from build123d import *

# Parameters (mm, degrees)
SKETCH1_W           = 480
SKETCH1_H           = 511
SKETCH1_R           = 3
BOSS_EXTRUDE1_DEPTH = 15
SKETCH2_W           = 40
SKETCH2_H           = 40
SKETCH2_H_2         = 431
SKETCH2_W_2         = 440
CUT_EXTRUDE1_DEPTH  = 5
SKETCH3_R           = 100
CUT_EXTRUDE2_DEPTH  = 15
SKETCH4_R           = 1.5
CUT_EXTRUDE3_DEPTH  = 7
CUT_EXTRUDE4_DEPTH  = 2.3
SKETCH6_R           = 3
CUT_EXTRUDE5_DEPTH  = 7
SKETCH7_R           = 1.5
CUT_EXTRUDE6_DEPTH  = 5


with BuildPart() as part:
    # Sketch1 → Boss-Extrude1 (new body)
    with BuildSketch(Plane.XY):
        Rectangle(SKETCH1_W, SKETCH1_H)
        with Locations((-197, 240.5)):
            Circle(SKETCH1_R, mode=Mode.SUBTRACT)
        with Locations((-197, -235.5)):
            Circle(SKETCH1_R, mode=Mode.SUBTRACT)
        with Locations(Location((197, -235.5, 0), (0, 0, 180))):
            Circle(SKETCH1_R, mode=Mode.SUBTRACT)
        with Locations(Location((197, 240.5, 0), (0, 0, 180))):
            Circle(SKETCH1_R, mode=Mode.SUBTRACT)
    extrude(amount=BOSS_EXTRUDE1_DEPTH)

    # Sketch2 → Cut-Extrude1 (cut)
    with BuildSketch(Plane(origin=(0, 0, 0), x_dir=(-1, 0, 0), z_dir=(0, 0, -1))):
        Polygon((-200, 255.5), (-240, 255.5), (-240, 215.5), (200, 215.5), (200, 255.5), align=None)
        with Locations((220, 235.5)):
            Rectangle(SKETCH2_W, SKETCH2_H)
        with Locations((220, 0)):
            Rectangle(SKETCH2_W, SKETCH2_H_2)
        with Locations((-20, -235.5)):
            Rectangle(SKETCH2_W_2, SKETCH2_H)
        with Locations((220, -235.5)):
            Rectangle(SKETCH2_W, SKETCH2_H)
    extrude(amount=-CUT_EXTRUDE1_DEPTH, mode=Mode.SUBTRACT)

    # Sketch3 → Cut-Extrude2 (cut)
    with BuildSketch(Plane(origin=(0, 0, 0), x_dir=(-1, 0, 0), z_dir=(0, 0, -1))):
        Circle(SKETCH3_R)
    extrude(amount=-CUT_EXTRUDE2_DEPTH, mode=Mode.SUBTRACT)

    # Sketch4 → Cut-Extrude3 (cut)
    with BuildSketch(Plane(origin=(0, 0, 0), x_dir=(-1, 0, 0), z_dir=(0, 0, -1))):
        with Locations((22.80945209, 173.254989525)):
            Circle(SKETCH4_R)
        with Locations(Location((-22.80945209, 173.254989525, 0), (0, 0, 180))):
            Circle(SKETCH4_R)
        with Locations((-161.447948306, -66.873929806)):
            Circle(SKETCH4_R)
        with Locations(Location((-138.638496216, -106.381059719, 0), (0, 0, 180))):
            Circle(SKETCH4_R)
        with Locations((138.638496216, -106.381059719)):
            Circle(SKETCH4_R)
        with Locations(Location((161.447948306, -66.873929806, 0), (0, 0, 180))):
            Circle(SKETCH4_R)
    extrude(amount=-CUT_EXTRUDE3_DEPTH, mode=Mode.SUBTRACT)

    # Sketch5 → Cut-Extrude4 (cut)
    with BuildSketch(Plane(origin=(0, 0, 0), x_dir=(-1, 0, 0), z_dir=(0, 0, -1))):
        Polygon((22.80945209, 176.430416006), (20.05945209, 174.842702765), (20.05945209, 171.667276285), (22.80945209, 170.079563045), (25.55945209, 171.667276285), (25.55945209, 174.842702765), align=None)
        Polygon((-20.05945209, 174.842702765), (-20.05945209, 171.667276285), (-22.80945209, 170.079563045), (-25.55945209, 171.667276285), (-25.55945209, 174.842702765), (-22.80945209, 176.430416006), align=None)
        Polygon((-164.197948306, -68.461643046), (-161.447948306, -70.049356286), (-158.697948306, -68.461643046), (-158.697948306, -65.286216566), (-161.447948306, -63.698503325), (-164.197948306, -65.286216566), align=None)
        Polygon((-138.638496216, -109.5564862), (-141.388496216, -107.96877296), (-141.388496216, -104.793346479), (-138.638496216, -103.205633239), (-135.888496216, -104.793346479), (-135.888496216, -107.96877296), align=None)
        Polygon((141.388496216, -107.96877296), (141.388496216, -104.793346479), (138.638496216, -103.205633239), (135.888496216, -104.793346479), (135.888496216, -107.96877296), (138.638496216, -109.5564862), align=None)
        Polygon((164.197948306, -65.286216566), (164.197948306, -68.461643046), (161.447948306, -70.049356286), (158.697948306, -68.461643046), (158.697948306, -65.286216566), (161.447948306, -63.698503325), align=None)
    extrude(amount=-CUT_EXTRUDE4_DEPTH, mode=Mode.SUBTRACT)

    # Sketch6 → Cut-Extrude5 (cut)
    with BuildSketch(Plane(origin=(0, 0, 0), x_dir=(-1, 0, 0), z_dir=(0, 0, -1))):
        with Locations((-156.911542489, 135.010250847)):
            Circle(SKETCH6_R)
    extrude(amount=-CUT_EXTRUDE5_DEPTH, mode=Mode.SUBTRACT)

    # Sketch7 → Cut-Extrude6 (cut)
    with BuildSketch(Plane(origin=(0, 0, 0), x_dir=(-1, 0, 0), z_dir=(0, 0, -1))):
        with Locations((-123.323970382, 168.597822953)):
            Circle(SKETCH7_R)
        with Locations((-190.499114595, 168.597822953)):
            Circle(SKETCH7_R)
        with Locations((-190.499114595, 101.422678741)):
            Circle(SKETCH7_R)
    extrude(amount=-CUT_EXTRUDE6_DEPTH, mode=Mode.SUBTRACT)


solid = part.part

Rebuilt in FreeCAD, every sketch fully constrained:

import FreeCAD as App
import Part
import Sketcher

V = App.Vector
Q = App.Units.Quantity

doc = App.newDocument("Part")
body = doc.addObject("PartDesign::Body", "Body")

# Sketch on XY plane
sketch1 = body.newObject("Sketcher::SketchObject", "Sketch")
sketch1.AttachmentSupport = (doc.getObject("XY_Plane"), [""])
sketch1.MapMode = "FlatFace"
sketch1.addGeometry(Part.LineSegment(V(-240, 255.5, 0), V(-240, -255.5, 0)), False)
sketch1.addGeometry(Part.LineSegment(V(-240, -255.5, 0), V(240, -255.5, 0)), False)
sketch1.addGeometry(Part.LineSegment(V(240, -255.5, 0), V(240, 255.5, 0)), False)
sketch1.addGeometry(Part.LineSegment(V(240, 255.5, 0), V(-240, 255.5, 0)), False)
sketch1.addGeometry(Part.Circle(V(-197, -235.5, 0), V(0, 0, 1), 3), False)
sketch1.addGeometry(Part.Circle(V(197, -235.5, 0), V(0, 0, 1), 3), False)
sketch1.addGeometry(Part.Circle(V(-197, 240.5, 0), V(0, 0, 1), 3), False)
sketch1.addGeometry(Part.Circle(V(197, 240.5, 0), V(0, 0, 1), 3), False)
sketch1.addConstraint(Sketcher.Constraint("Coincident", 0, 2, 1, 1))
sketch1.addConstraint(Sketcher.Constraint("Coincident", 1, 2, 2, 1))
sketch1.addConstraint(Sketcher.Constraint("Coincident", 2, 2, 3, 1))
sketch1.addConstraint(Sketcher.Constraint("Coincident", 3, 2, 0, 1))
sketch1.addConstraint(Sketcher.Constraint("Vertical", 0))
sketch1.addConstraint(Sketcher.Constraint("Horizontal", 1))
sketch1.addConstraint(Sketcher.Constraint("Vertical", 2))
sketch1.addConstraint(Sketcher.Constraint("Horizontal", 3))
sketch1.addConstraint(Sketcher.Constraint("Equal", 4, 5))
sketch1.addConstraint(Sketcher.Constraint("Equal", 5, 6))
sketch1.addConstraint(Sketcher.Constraint("Equal", 6, 7))
sketch1.addConstraint(Sketcher.Constraint("Symmetric", 0, 2, 2, 2, -1, 1))
sketch1.addConstraint(Sketcher.Constraint("Symmetric", 4, 3, 5, 3, -2))
sketch1.addConstraint(Sketcher.Constraint("Symmetric", 6, 3, 7, 3, -2))
sketch1.addConstraint(Sketcher.Constraint("Vertical", 4, 3, 6, 3))
sketch1.addConstraint(Sketcher.Constraint("Diameter", 4, Q("6 mm")))
sketch1.addConstraint(Sketcher.Constraint("DistanceX", 1, 1, 1, 2, Q("480 mm")))
sketch1.addConstraint(Sketcher.Constraint("DistanceY", 0, 2, 0, 1, Q("511 mm")))
sketch1.addConstraint(Sketcher.Constraint("DistanceX", 4, 3, -1, 1, Q("197 mm")))
sketch1.addConstraint(Sketcher.Constraint("DistanceY", 4, 3, 6, 3, Q("476 mm")))
sketch1.addConstraint(Sketcher.Constraint("DistanceY", 0, 2, 4, 3, Q("20 mm")))
pad1 = body.newObject("PartDesign::Pad", "Pad")
pad1.Profile = sketch1
pad1.Length = 15

# Sketch on XY plane
sketch2 = body.newObject("Sketcher::SketchObject", "Sketch001")
sketch2.AttachmentSupport = (doc.getObject("XY_Plane"), [""])
sketch2.MapMode = "FlatFace"
sketch2.addGeometry(Part.LineSegment(V(240, 256, 0), V(240, 216, 0)), False)
sketch2.addGeometry(Part.LineSegment(V(240, 216, 0), V(-200, 216, 0)), False)
sketch2.addGeometry(Part.LineSegment(V(-200, 216, 0), V(-200, -216, 0)), False)
sketch2.addGeometry(Part.LineSegment(V(-200, -216, 0), V(240, -216, 0)), False)
sketch2.addGeometry(Part.LineSegment(V(240, -216, 0), V(240, -256, 0)), False)
sketch2.addGeometry(Part.LineSegment(V(240, -256, 0), V(-240, -256, 0)), False)
sketch2.addGeometry(Part.LineSegment(V(-240, -256, 0), V(-240, 256, 0)), False)
sketch2.addGeometry(Part.LineSegment(V(-240, 256, 0), V(240, 256, 0)), False)
sketch2.addConstraint(Sketcher.Constraint("Coincident", 0, 2, 1, 1))
sketch2.addConstraint(Sketcher.Constraint("Coincident", 1, 2, 2, 1))
sketch2.addConstraint(Sketcher.Constraint("Coincident", 2, 2, 3, 1))
sketch2.addConstraint(Sketcher.Constraint("Coincident", 3, 2, 4, 1))
sketch2.addConstraint(Sketcher.Constraint("Coincident", 4, 2, 5, 1))
sketch2.addConstraint(Sketcher.Constraint("Coincident", 5, 2, 6, 1))
sketch2.addConstraint(Sketcher.Constraint("Coincident", 6, 2, 7, 1))
sketch2.addConstraint(Sketcher.Constraint("Coincident", 7, 2, 0, 1))
sketch2.addConstraint(Sketcher.Constraint("Vertical", 0))
sketch2.addConstraint(Sketcher.Constraint("Horizontal", 1))
sketch2.addConstraint(Sketcher.Constraint("Vertical", 2))
sketch2.addConstraint(Sketcher.Constraint("Horizontal", 3))
sketch2.addConstraint(Sketcher.Constraint("Vertical", 4))
sketch2.addConstraint(Sketcher.Constraint("Horizontal", 5))
sketch2.addConstraint(Sketcher.Constraint("Vertical", 6))
sketch2.addConstraint(Sketcher.Constraint("Horizontal", 7))
sketch2.addConstraint(Sketcher.Constraint("Symmetric", 4, 2, 6, 2, -1, 1))
sketch2.addConstraint(Sketcher.Constraint("Symmetric", 0, 2, 3, 2, -1))
sketch2.addConstraint(Sketcher.Constraint("DistanceX", 1, 2, 1, 1, Q("440 mm")))
sketch2.addConstraint(Sketcher.Constraint("DistanceX", 5, 2, 5, 1, Q("480 mm")))
sketch2.addConstraint(Sketcher.Constraint("DistanceY", 0, 2, 0, 1, Q("40 mm")))
sketch2.addConstraint(Sketcher.Constraint("DistanceY", 2, 2, 2, 1, Q("431 mm")))
pocket1 = body.newObject("PartDesign::Pocket", "Pocket")
pocket1.Profile = sketch2
pocket1.Length = 5
pocket1.Reversed = True

# Sketch on XY plane
sketch3 = body.newObject("Sketcher::SketchObject", "Sketch002")
sketch3.AttachmentSupport = (doc.getObject("XY_Plane"), [""])
sketch3.MapMode = "FlatFace"
sketch3.addGeometry(Part.Circle(V(0, 0, 0), V(0, 0, 1), 100), False)
sketch3.addConstraint(Sketcher.Constraint("Coincident", 0, 3, -1, 1))
sketch3.addConstraint(Sketcher.Constraint("Diameter", 0, Q("200 mm")))
pocket2 = body.newObject("PartDesign::Pocket", "Pocket001")
pocket2.Profile = sketch3
pocket2.Length = 15
pocket2.Reversed = True

# Sketch on XY plane
sketch4 = body.newObject("Sketcher::SketchObject", "Sketch003")
sketch4.AttachmentSupport = (doc.getObject("XY_Plane"), [""])
sketch4.MapMode = "FlatFace"
sketch4.addGeometry(Part.Circle(V(-22.8, 173.3, 0), V(0, 0, 1), 1.5), False)
sketch4.addGeometry(Part.Circle(V(22.8, 173.3, 0), V(0, 0, 1), 1.5), False)
sketch4.addGeometry(Part.Circle(V(161.4, -66.9, 0), V(0, 0, 1), 1.5), False)
sketch4.addGeometry(Part.Circle(V(138.6, -106.4, 0), V(0, 0, 1), 1.5), False)
sketch4.addGeometry(Part.Circle(V(-138.6, -106.4, 0), V(0, 0, 1), 1.5), False)
sketch4.addGeometry(Part.Circle(V(-161.4, -66.9, 0), V(0, 0, 1), 1.5), False)
sketch4.addConstraint(Sketcher.Constraint("Equal", 0, 1))
sketch4.addConstraint(Sketcher.Constraint("Equal", 1, 2))
sketch4.addConstraint(Sketcher.Constraint("Equal", 2, 3))
sketch4.addConstraint(Sketcher.Constraint("Equal", 3, 4))
sketch4.addConstraint(Sketcher.Constraint("Equal", 4, 5))
sketch4.addConstraint(Sketcher.Constraint("Symmetric", 0, 3, 1, 3, -2))
sketch4.addConstraint(Sketcher.Constraint("Symmetric", 3, 3, 4, 3, -2))
sketch4.addConstraint(Sketcher.Constraint("Symmetric", 2, 3, 5, 3, -2))
sketch4.addConstraint(Sketcher.Constraint("Diameter", 0, Q("3 mm")))
sketch4.addConstraint(Sketcher.Constraint("DistanceX", 0, 3, 2, 3, Q("184.2574 mm")))
sketch4.addConstraint(Sketcher.Constraint("DistanceY", -1, 1, 0, 3, Q("173.25499 mm")))
sketch4.addConstraint(Sketcher.Constraint("DistanceX", -1, 1, 2, 3, Q("161.447948 mm")))
sketch4.addConstraint(Sketcher.Constraint("DistanceY", 2, 3, -1, 1, Q("66.87393 mm")))
sketch4.addConstraint(Sketcher.Constraint("DistanceY", 3, 3, -1, 1, Q("106.38106 mm")))
sketch4.addConstraint(Sketcher.Constraint("DistanceX", 0, 3, 3, 3, Q("161.447948 mm")))
pocket3 = body.newObject("PartDesign::Pocket", "Pocket002")
pocket3.Profile = sketch4
pocket3.Length = 7
pocket3.Reversed = True

# Sketch on XY plane
sketch5 = body.newObject("Sketcher::SketchObject", "Sketch004")
sketch5.AttachmentSupport = (doc.getObject("XY_Plane"), [""])
sketch5.MapMode = "FlatFace"
sketch5.addGeometry(Part.LineSegment(V(-22.8, 176.4, 0), V(-20.1, 174.8, 0)), False)
sketch5.addGeometry(Part.LineSegment(V(-20.1, 174.8, 0), V(-20.1, 171.7, 0)), False)
sketch5.addGeometry(Part.LineSegment(V(-20.1, 171.7, 0), V(-22.8, 170.1, 0)), False)
sketch5.addGeometry(Part.LineSegment(V(-22.8, 170.1, 0), V(-25.6, 171.7, 0)), False)
sketch5.addGeometry(Part.LineSegment(V(-25.6, 171.7, 0), V(-25.6, 174.8, 0)), False)
sketch5.addGeometry(Part.LineSegment(V(-25.6, 174.8, 0), V(-22.8, 176.4, 0)), False)
sketch5.addGeometry(Part.LineSegment(V(20.1, 171.7, 0), V(20.1, 174.8, 0)), False)
sketch5.addGeometry(Part.LineSegment(V(20.1, 174.8, 0), V(22.8, 176.4, 0)), False)
sketch5.addGeometry(Part.LineSegment(V(22.8, 176.4, 0), V(25.6, 174.8, 0)), False)
sketch5.addGeometry(Part.LineSegment(V(25.6, 174.8, 0), V(25.6, 171.7, 0)), False)
sketch5.addGeometry(Part.LineSegment(V(25.6, 171.7, 0), V(22.8, 170.1, 0)), False)
sketch5.addGeometry(Part.LineSegment(V(22.8, 170.1, 0), V(20.1, 171.7, 0)), False)
sketch5.addGeometry(Part.LineSegment(V(164.2, -68.5, 0), V(161.4, -70, 0)), False)
sketch5.addGeometry(Part.LineSegment(V(161.4, -70, 0), V(158.7, -68.5, 0)), False)
sketch5.addGeometry(Part.LineSegment(V(158.7, -68.5, 0), V(158.7, -65.3, 0)), False)
sketch5.addGeometry(Part.LineSegment(V(158.7, -65.3, 0), V(161.4, -63.7, 0)), False)
sketch5.addGeometry(Part.LineSegment(V(161.4, -63.7, 0), V(164.2, -65.3, 0)), False)
sketch5.addGeometry(Part.LineSegment(V(164.2, -65.3, 0), V(164.2, -68.5, 0)), False)
sketch5.addGeometry(Part.LineSegment(V(141.4, -108, 0), V(138.6, -109.6, 0)), False)
sketch5.addGeometry(Part.LineSegment(V(138.6, -109.6, 0), V(135.9, -108, 0)), False)
sketch5.addGeometry(Part.LineSegment(V(135.9, -108, 0), V(135.9, -104.8, 0)), False)
sketch5.addGeometry(Part.LineSegment(V(135.9, -104.8, 0), V(138.6, -103.2, 0)), False)
sketch5.addGeometry(Part.LineSegment(V(138.6, -103.2, 0), V(141.4, -104.8, 0)), False)
sketch5.addGeometry(Part.LineSegment(V(141.4, -104.8, 0), V(141.4, -108, 0)), False)
sketch5.addGeometry(Part.LineSegment(V(-141.4, -108, 0), V(-141.4, -104.8, 0)), False)
sketch5.addGeometry(Part.LineSegment(V(-141.4, -104.8, 0), V(-138.6, -103.2, 0)), False)
sketch5.addGeometry(Part.LineSegment(V(-138.6, -103.2, 0), V(-135.9, -104.8, 0)), False)
sketch5.addGeometry(Part.LineSegment(V(-135.9, -104.8, 0), V(-135.9, -108, 0)), False)
sketch5.addGeometry(Part.LineSegment(V(-135.9, -108, 0), V(-138.6, -109.6, 0)), False)
sketch5.addGeometry(Part.LineSegment(V(-138.6, -109.6, 0), V(-141.4, -108, 0)), False)
sketch5.addGeometry(Part.LineSegment(V(-164.2, -68.5, 0), V(-164.2, -65.3, 0)), False)
sketch5.addGeometry(Part.LineSegment(V(-164.2, -65.3, 0), V(-161.4, -63.7, 0)), False)
sketch5.addGeometry(Part.LineSegment(V(-161.4, -63.7, 0), V(-158.7, -65.3, 0)), False)
sketch5.addGeometry(Part.LineSegment(V(-158.7, -65.3, 0), V(-158.7, -68.5, 0)), False)
sketch5.addGeometry(Part.LineSegment(V(-158.7, -68.5, 0), V(-161.4, -70, 0)), False)
sketch5.addGeometry(Part.LineSegment(V(-161.4, -70, 0), V(-164.2, -68.5, 0)), False)
sketch5.addConstraint(Sketcher.Constraint("Coincident", 0, 2, 1, 1))
sketch5.addConstraint(Sketcher.Constraint("Coincident", 1, 2, 2, 1))
sketch5.addConstraint(Sketcher.Constraint("Coincident", 2, 2, 3, 1))
sketch5.addConstraint(Sketcher.Constraint("Coincident", 3, 2, 4, 1))
sketch5.addConstraint(Sketcher.Constraint("Coincident", 4, 2, 5, 1))
sketch5.addConstraint(Sketcher.Constraint("Coincident", 5, 2, 0, 1))
sketch5.addConstraint(Sketcher.Constraint("Coincident", 6, 2, 7, 1))
sketch5.addConstraint(Sketcher.Constraint("Coincident", 7, 2, 8, 1))
sketch5.addConstraint(Sketcher.Constraint("Coincident", 8, 2, 9, 1))
sketch5.addConstraint(Sketcher.Constraint("Coincident", 9, 2, 10, 1))
sketch5.addConstraint(Sketcher.Constraint("Coincident", 10, 2, 11, 1))
sketch5.addConstraint(Sketcher.Constraint("Coincident", 11, 2, 6, 1))
sketch5.addConstraint(Sketcher.Constraint("Coincident", 12, 2, 13, 1))
sketch5.addConstraint(Sketcher.Constraint("Coincident", 13, 2, 14, 1))
sketch5.addConstraint(Sketcher.Constraint("Coincident", 14, 2, 15, 1))
sketch5.addConstraint(Sketcher.Constraint("Coincident", 15, 2, 16, 1))
sketch5.addConstraint(Sketcher.Constraint("Coincident", 16, 2, 17, 1))
sketch5.addConstraint(Sketcher.Constraint("Coincident", 17, 2, 12, 1))
sketch5.addConstraint(Sketcher.Constraint("Coincident", 18, 2, 19, 1))
sketch5.addConstraint(Sketcher.Constraint("Coincident", 19, 2, 20, 1))
sketch5.addConstraint(Sketcher.Constraint("Coincident", 20, 2, 21, 1))
sketch5.addConstraint(Sketcher.Constraint("Coincident", 21, 2, 22, 1))
sketch5.addConstraint(Sketcher.Constraint("Coincident", 22, 2, 23, 1))
sketch5.addConstraint(Sketcher.Constraint("Coincident", 23, 2, 18, 1))
sketch5.addConstraint(Sketcher.Constraint("Coincident", 24, 2, 25, 1))
sketch5.addConstraint(Sketcher.Constraint("Coincident", 25, 2, 26, 1))
sketch5.addConstraint(Sketcher.Constraint("Coincident", 26, 2, 27, 1))
sketch5.addConstraint(Sketcher.Constraint("Coincident", 27, 2, 28, 1))
sketch5.addConstraint(Sketcher.Constraint("Coincident", 28, 2, 29, 1))
sketch5.addConstraint(Sketcher.Constraint("Coincident", 29, 2, 24, 1))
sketch5.addConstraint(Sketcher.Constraint("Coincident", 30, 2, 31, 1))
sketch5.addConstraint(Sketcher.Constraint("Coincident", 31, 2, 32, 1))
sketch5.addConstraint(Sketcher.Constraint("Coincident", 32, 2, 33, 1))
sketch5.addConstraint(Sketcher.Constraint("Coincident", 33, 2, 34, 1))
sketch5.addConstraint(Sketcher.Constraint("Coincident", 34, 2, 35, 1))
sketch5.addConstraint(Sketcher.Constraint("Coincident", 35, 2, 30, 1))
sketch5.addConstraint(Sketcher.Constraint("Vertical", 1))
sketch5.addConstraint(Sketcher.Constraint("Vertical", 4))
sketch5.addConstraint(Sketcher.Constraint("Vertical", 6))
sketch5.addConstraint(Sketcher.Constraint("Vertical", 9))
sketch5.addConstraint(Sketcher.Constraint("Vertical", 14))
sketch5.addConstraint(Sketcher.Constraint("Vertical", 17))
sketch5.addConstraint(Sketcher.Constraint("Vertical", 20))
sketch5.addConstraint(Sketcher.Constraint("Vertical", 23))
sketch5.addConstraint(Sketcher.Constraint("Vertical", 24))
sketch5.addConstraint(Sketcher.Constraint("Vertical", 27))
sketch5.addConstraint(Sketcher.Constraint("Vertical", 30))
sketch5.addConstraint(Sketcher.Constraint("Vertical", 33))
sketch5.addConstraint(Sketcher.Constraint("Symmetric", 0, 2, 6, 2, -2))
sketch5.addConstraint(Sketcher.Constraint("Symmetric", 5, 2, 7, 2, -2))
sketch5.addConstraint(Sketcher.Constraint("Symmetric", 4, 2, 8, 2, -2))
sketch5.addConstraint(Sketcher.Constraint("Symmetric", 2, 2, 10, 2, -2))
sketch5.addConstraint(Sketcher.Constraint("Symmetric", 22, 2, 24, 2, -2))
sketch5.addConstraint(Sketcher.Constraint("Symmetric", 21, 2, 25, 2, -2))
sketch5.addConstraint(Sketcher.Constraint("Symmetric", 20, 2, 26, 2, -2))
sketch5.addConstraint(Sketcher.Constraint("Symmetric", 18, 2, 28, 2, -2))
sketch5.addConstraint(Sketcher.Constraint("Symmetric", 16, 2, 30, 2, -2))
sketch5.addConstraint(Sketcher.Constraint("Symmetric", 15, 2, 31, 2, -2))
sketch5.addConstraint(Sketcher.Constraint("Symmetric", 14, 2, 32, 2, -2))
sketch5.addConstraint(Sketcher.Constraint("Symmetric", 12, 2, 34, 2, -2))
sketch5.addConstraint(Sketcher.Constraint("Parallel", 0, 3))
sketch5.addConstraint(Sketcher.Constraint("Parallel", 2, 5))
sketch5.addConstraint(Sketcher.Constraint("Parallel", 5, 7))
sketch5.addConstraint(Sketcher.Constraint("Parallel", 7, 10))
sketch5.addConstraint(Sketcher.Constraint("Parallel", 8, 11))
sketch5.addConstraint(Sketcher.Constraint("Parallel", 10, 12))
sketch5.addConstraint(Sketcher.Constraint("Parallel", 11, 13))
sketch5.addConstraint(Sketcher.Constraint("Parallel", 12, 15))
sketch5.addConstraint(Sketcher.Constraint("Parallel", 13, 16))
sketch5.addConstraint(Sketcher.Constraint("Parallel", 15, 18))
sketch5.addConstraint(Sketcher.Constraint("Parallel", 16, 19))
sketch5.addConstraint(Sketcher.Constraint("Parallel", 18, 21))
sketch5.addConstraint(Sketcher.Constraint("Parallel", 19, 22))
sketch5.addConstraint(Sketcher.Constraint("Parallel", 25, 28))
sketch5.addConstraint(Sketcher.Constraint("Parallel", 26, 29))
sketch5.addConstraint(Sketcher.Constraint("Parallel", 31, 34))
sketch5.addConstraint(Sketcher.Constraint("Parallel", 32, 35))
sketch5.addConstraint(Sketcher.Constraint("Horizontal", 1, 2, 3, 2))
sketch5.addConstraint(Sketcher.Constraint("Horizontal", 0, 2, 4, 2))
sketch5.addConstraint(Sketcher.Constraint("Horizontal", 14, 2, 16, 2))
sketch5.addConstraint(Sketcher.Constraint("Horizontal", 13, 2, 17, 2))
sketch5.addConstraint(Sketcher.Constraint("Horizontal", 20, 2, 22, 2))
sketch5.addConstraint(Sketcher.Constraint("Horizontal", 19, 2, 23, 2))
sketch5.addConstraint(Sketcher.Constraint("Equal", 9, 14))
sketch5.addConstraint(Sketcher.Constraint("Equal", 17, 20))
sketch5.addConstraint(Sketcher.Constraint("Equal", 11, 12))
sketch5.addConstraint(Sketcher.Constraint("Equal", 16, 18))
sketch5.addConstraint(Sketcher.Constraint("Angle", 0, Q("-30 deg")))
sketch5.addConstraint(Sketcher.Constraint("DistanceX", 3, 2, 1, 2, Q("5.5 mm")))
sketch5.addConstraint(Sketcher.Constraint("DistanceY", 1, 2, 1, 1, Q("3.175426 mm")))
sketch5.addConstraint(Sketcher.Constraint("DistanceX", -1, 1, 12, 2, Q("161.447948 mm")))
sketch5.addConstraint(Sketcher.Constraint("DistanceY", 12, 2, 10, 2, Q("240.128919 mm")))
sketch5.addConstraint(Sketcher.Constraint("DistanceY", 18, 2, 12, 2, Q("39.50713 mm")))
sketch5.addConstraint(Sketcher.Constraint("DistanceX", 0, 2, -1, 1, Q("20.059452 mm")))
sketch5.addConstraint(Sketcher.Constraint("DistanceY", -1, 1, 0, 2, Q("174.842703 mm")))
sketch5.addConstraint(Sketcher.Constraint("DistanceX", -1, 1, 18, 2, Q("138.638496 mm")))
pocket4 = body.newObject("PartDesign::Pocket", "Pocket003")
pocket4.Profile = sketch5
pocket4.Length = 2.3
pocket4.Reversed = True

# Sketch on XY plane
sketch6 = body.newObject("Sketcher::SketchObject", "Sketch005")
sketch6.AttachmentSupport = (doc.getObject("XY_Plane"), [""])
sketch6.MapMode = "FlatFace"
sketch6.addGeometry(Part.Circle(V(156.9, 135, 0), V(0, 0, 1), 3), False)
sketch6.addConstraint(Sketcher.Constraint("Diameter", 0, Q("6 mm")))
sketch6.addConstraint(Sketcher.Constraint("DistanceY", -1, 1, 0, 3, Q("135.010251 mm")))
sketch6.addConstraint(Sketcher.Constraint("DistanceX", -1, 1, 0, 3, Q("156.911542 mm")))
pocket5 = body.newObject("PartDesign::Pocket", "Pocket004")
pocket5.Profile = sketch6
pocket5.Length = 7
pocket5.Reversed = True

# Sketch on XY plane
sketch7 = body.newObject("Sketcher::SketchObject", "Sketch006")
sketch7.AttachmentSupport = (doc.getObject("XY_Plane"), [""])
sketch7.MapMode = "FlatFace"
sketch7.addGeometry(Part.Circle(V(123.3, 168.6, 0), V(0, 0, 1), 1.5), False)
sketch7.addGeometry(Part.Circle(V(190.5, 168.6, 0), V(0, 0, 1), 1.5), False)
sketch7.addGeometry(Part.Circle(V(190.5, 101.4, 0), V(0, 0, 1), 1.5), False)
sketch7.addConstraint(Sketcher.Constraint("Equal", 0, 1))
sketch7.addConstraint(Sketcher.Constraint("Equal", 1, 2))
sketch7.addConstraint(Sketcher.Constraint("Horizontal", 0, 3, 1, 3))
sketch7.addConstraint(Sketcher.Constraint("Vertical", 1, 3, 2, 3))
sketch7.addConstraint(Sketcher.Constraint("Diameter", 0, Q("3 mm")))
sketch7.addConstraint(Sketcher.Constraint("DistanceX", -1, 1, 0, 3, Q("123.32397 mm")))
sketch7.addConstraint(Sketcher.Constraint("DistanceY", -1, 1, 2, 3, Q("101.422679 mm")))
sketch7.addConstraint(Sketcher.Constraint("DistanceY", -1, 1, 0, 3, Q("168.597823 mm")))
sketch7.addConstraint(Sketcher.Constraint("DistanceX", -1, 1, 1, 3, Q("190.499115 mm")))
pocket6 = body.newObject("PartDesign::Pocket", "Pocket005")
pocket6.Profile = sketch7
pocket6.Length = 5
pocket6.Reversed = True

doc.recompute()
